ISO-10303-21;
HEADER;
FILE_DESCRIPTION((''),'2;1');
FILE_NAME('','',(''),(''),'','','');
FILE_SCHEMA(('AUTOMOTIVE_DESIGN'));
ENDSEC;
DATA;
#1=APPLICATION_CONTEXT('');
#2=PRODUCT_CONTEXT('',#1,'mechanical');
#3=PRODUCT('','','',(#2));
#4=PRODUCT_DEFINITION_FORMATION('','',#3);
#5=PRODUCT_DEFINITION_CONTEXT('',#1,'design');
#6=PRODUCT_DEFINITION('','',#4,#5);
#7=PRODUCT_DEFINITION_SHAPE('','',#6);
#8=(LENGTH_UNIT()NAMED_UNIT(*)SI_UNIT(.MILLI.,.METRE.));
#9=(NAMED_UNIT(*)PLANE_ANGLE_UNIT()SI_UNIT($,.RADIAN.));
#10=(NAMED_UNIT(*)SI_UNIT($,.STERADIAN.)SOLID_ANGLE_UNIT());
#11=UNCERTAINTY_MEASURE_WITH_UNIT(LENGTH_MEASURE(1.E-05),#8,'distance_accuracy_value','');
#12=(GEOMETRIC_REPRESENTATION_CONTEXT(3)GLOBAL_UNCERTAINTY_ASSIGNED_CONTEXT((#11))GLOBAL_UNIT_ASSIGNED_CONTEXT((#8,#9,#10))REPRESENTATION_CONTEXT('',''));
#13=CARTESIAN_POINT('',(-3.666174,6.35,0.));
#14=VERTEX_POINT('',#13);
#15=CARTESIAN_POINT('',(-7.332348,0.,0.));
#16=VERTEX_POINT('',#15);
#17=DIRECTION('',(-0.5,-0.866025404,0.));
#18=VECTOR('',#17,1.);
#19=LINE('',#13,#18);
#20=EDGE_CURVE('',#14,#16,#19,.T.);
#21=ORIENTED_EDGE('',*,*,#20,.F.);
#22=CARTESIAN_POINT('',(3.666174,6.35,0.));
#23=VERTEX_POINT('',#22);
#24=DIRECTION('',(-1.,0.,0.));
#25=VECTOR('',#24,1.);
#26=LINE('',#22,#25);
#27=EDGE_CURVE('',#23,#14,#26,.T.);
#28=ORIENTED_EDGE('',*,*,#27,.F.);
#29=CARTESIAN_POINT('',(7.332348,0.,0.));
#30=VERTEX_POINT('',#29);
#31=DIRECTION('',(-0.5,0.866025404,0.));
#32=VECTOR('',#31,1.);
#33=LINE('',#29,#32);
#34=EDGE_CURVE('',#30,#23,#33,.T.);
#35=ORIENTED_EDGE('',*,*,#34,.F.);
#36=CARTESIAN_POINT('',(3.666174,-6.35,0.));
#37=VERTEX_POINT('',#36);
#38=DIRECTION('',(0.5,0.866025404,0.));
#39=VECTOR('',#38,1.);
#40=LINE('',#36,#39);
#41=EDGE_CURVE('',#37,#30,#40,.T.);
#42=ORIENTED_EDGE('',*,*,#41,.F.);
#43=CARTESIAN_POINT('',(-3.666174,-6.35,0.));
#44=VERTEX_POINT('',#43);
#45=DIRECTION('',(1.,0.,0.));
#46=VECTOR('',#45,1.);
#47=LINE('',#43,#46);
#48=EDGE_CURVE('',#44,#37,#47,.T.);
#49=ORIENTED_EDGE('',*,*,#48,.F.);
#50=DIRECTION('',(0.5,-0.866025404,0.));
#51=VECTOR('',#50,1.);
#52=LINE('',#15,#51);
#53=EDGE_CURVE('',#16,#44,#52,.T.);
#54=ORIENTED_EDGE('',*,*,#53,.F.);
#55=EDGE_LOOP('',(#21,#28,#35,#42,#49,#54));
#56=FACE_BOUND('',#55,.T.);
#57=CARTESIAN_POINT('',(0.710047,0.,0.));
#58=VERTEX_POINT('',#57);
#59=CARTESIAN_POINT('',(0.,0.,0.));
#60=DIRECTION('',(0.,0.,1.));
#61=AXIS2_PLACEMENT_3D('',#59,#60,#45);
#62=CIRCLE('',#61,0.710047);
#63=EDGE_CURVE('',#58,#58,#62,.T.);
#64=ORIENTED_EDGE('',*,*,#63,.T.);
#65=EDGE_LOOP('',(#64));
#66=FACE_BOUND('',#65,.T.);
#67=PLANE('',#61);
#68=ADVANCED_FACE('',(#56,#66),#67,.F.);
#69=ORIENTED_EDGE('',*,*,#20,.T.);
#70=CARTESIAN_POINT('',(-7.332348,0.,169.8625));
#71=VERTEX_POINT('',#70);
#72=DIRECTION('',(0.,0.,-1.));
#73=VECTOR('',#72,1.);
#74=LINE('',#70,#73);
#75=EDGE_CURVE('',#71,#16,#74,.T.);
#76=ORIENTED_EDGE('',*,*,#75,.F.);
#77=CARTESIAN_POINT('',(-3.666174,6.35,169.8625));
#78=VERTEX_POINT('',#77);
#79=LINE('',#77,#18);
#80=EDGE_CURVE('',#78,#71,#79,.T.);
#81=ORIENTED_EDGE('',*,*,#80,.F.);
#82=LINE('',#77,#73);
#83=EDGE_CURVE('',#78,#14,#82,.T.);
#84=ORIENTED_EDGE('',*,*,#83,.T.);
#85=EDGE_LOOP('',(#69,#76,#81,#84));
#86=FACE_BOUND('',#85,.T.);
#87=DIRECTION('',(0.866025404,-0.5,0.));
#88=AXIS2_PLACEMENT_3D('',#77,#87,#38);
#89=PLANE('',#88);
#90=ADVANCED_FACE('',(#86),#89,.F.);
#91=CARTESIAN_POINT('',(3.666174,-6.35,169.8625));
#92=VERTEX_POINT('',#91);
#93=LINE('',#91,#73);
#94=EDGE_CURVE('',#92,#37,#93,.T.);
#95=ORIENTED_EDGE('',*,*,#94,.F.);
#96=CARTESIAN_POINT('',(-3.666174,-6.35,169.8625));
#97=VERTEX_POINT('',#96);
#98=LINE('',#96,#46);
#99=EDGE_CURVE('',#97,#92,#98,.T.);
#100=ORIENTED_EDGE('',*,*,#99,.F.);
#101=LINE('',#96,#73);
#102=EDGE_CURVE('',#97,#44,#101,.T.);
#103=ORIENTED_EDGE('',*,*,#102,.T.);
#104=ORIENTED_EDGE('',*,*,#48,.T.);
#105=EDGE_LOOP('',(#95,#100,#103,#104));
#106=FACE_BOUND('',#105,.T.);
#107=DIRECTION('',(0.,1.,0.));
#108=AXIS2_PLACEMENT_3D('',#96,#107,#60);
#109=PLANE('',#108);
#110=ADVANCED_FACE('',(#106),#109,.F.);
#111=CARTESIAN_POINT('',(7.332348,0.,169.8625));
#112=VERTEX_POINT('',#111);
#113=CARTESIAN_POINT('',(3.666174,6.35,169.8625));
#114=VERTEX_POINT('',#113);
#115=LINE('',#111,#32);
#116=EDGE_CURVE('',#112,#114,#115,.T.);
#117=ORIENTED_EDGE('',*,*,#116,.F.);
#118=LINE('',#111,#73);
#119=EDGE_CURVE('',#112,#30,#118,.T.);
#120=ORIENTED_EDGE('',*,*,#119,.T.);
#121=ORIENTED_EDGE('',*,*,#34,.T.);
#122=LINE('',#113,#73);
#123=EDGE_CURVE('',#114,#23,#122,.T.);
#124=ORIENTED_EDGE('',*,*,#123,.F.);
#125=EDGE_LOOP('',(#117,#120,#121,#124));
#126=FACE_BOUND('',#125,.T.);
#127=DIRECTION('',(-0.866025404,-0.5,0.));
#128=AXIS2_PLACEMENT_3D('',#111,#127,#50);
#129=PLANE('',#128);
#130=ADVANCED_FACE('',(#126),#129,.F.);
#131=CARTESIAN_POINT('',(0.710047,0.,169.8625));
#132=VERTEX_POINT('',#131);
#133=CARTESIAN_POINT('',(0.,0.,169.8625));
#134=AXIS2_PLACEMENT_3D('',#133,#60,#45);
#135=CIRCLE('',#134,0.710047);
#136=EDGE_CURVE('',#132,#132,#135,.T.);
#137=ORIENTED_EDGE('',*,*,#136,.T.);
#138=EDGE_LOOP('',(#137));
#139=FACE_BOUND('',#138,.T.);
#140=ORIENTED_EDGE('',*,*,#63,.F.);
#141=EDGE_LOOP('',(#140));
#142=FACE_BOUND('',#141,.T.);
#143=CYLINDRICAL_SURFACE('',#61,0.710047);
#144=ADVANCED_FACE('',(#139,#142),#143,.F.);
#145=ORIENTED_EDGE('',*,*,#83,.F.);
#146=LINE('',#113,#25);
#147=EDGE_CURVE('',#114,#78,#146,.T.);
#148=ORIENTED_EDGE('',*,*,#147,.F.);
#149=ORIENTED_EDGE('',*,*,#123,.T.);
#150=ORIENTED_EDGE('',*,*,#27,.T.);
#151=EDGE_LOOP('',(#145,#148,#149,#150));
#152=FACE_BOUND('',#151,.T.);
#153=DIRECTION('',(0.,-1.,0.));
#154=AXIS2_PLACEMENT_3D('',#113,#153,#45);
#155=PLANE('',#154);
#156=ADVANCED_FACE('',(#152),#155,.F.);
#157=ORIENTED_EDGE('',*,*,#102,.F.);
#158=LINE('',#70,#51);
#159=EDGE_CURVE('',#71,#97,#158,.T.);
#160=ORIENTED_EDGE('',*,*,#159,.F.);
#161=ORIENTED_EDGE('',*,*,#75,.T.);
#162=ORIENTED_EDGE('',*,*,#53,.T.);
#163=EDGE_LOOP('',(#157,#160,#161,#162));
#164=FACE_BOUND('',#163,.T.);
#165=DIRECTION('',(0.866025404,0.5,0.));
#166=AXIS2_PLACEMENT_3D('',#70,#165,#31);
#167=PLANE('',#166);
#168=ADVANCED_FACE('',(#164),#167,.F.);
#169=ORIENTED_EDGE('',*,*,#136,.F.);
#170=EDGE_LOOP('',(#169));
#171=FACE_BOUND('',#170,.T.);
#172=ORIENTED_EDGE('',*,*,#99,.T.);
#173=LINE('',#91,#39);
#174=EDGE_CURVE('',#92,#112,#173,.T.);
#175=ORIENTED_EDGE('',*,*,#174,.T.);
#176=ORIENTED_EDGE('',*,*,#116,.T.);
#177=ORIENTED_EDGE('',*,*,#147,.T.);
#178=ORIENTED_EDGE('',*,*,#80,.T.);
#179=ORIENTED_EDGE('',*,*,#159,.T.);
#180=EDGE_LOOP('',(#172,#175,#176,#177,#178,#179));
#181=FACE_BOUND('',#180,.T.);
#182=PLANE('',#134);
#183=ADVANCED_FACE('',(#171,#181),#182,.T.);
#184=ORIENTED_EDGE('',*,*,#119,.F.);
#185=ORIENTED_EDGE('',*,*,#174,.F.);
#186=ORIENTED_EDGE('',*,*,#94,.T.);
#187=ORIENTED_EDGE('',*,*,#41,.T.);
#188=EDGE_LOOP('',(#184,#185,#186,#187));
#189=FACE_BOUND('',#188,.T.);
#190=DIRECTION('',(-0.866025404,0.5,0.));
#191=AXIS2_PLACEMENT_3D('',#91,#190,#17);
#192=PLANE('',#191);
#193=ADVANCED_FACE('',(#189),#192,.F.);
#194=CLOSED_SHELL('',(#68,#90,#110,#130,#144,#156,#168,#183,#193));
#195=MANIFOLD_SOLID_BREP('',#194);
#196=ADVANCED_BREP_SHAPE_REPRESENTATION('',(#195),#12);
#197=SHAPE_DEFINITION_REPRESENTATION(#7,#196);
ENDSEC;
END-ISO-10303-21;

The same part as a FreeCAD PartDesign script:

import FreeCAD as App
import Part
import Sketcher
from FreeCAD import Vector
Q = App.Units.Quantity


def add_polygon(sketch, points):
    """Adds a closed chain of lines whose ends are joined by coincident constraints."""
    first, n = sketch.GeometryCount, len(points)
    for a, b in zip(points, points[1:] + points[:1]):
        sketch.addGeometry(Part.LineSegment(App.Vector(*a, 0), App.Vector(*b, 0)), False)
    for i in range(n):
        sketch.addConstraint(Sketcher.Constraint("Coincident", first + i, 2, first + (i + 1) % n, 1))

doc = App.newDocument("Part")
params = doc.addObject("Spreadsheet::Sheet", "Params")
for row, (alias, value) in enumerate([
    ("pad1_length", "6.6875 in"),
], start=1):
    params.set(f"A{row}", alias)
    params.set(f"B{row}", "=" + value)
    params.setAlias(f"B{row}", alias)

body = doc.addObject("PartDesign::Body", "Body")

sketch1 = body.newObject("Sketcher::SketchObject", "Sketch")
sketch1.AttachmentSupport = (doc.getObject("XY_Plane"), [""])
sketch1.MapMode = "FlatFace"
add_polygon(sketch1, [(3.666174, -6.35), (7.332348, 0), (3.666174, 6.35), (-3.666174, 6.35), (-7.332348, 0), (-3.666174, -6.35)])
sketch1.addConstraint(Sketcher.Constraint("Horizontal", 2))
sketch1.addConstraint(Sketcher.Constraint("Horizontal", 5))
sketch1.addConstraint(Sketcher.Constraint("Symmetric", 0, 2, 3, 2, -1, 1))
sketch1.addConstraint(Sketcher.Constraint("Symmetric", 1, 2, 4, 2, -1, 1))
sketch1.addConstraint(Sketcher.Constraint("PointOnObject", 0, 2, -1))
sketch1.addConstraint(Sketcher.Constraint("Parallel", 0, 3))
sketch1.addConstraint(Sketcher.Constraint("Vertical", 2, 2, 4, 2))
sketch1.addConstraint(Sketcher.Constraint("Angle", 0, Q("60 deg")))
sketch1.addConstraint(Sketcher.Constraint("DistanceY", 4, 2, 2, 2, Q("0.5 in")))
sketch1.addConstraint(Sketcher.Constraint("DistanceX", 2, 2, 2, 1, Q("7.332348 mm")))
pad1 = body.newObject("PartDesign::Pad", "Pad")
pad1.Profile = sketch1
pad1.setExpression("Length", "Params.pad1_length")

sketch2 = body.newObject("Sketcher::SketchObject", "Sketch001")
sketch2.AttachmentSupport = (doc.getObject("XY_Plane"), [""])
sketch2.MapMode = "FlatFace"
sketch2.AttachmentOffset = App.Placement(Vector(0, 0, 6.6875 * 25.4), App.Rotation())
sketch2.addGeometry(Part.Circle(Vector(0, 0, 0), Vector(0, 0, 1), 0.710047), False)
sketch2.addConstraint(Sketcher.Constraint("Coincident", 0, 3, -1, 1))
sketch2.addConstraint(Sketcher.Constraint("Diameter", 0, Q("1.420095 mm")))
pocket1 = body.newObject("PartDesign::Pocket", "Pocket")
pocket1.Profile = sketch2
pocket1.Type = "ThroughAll"

doc.recompute()
